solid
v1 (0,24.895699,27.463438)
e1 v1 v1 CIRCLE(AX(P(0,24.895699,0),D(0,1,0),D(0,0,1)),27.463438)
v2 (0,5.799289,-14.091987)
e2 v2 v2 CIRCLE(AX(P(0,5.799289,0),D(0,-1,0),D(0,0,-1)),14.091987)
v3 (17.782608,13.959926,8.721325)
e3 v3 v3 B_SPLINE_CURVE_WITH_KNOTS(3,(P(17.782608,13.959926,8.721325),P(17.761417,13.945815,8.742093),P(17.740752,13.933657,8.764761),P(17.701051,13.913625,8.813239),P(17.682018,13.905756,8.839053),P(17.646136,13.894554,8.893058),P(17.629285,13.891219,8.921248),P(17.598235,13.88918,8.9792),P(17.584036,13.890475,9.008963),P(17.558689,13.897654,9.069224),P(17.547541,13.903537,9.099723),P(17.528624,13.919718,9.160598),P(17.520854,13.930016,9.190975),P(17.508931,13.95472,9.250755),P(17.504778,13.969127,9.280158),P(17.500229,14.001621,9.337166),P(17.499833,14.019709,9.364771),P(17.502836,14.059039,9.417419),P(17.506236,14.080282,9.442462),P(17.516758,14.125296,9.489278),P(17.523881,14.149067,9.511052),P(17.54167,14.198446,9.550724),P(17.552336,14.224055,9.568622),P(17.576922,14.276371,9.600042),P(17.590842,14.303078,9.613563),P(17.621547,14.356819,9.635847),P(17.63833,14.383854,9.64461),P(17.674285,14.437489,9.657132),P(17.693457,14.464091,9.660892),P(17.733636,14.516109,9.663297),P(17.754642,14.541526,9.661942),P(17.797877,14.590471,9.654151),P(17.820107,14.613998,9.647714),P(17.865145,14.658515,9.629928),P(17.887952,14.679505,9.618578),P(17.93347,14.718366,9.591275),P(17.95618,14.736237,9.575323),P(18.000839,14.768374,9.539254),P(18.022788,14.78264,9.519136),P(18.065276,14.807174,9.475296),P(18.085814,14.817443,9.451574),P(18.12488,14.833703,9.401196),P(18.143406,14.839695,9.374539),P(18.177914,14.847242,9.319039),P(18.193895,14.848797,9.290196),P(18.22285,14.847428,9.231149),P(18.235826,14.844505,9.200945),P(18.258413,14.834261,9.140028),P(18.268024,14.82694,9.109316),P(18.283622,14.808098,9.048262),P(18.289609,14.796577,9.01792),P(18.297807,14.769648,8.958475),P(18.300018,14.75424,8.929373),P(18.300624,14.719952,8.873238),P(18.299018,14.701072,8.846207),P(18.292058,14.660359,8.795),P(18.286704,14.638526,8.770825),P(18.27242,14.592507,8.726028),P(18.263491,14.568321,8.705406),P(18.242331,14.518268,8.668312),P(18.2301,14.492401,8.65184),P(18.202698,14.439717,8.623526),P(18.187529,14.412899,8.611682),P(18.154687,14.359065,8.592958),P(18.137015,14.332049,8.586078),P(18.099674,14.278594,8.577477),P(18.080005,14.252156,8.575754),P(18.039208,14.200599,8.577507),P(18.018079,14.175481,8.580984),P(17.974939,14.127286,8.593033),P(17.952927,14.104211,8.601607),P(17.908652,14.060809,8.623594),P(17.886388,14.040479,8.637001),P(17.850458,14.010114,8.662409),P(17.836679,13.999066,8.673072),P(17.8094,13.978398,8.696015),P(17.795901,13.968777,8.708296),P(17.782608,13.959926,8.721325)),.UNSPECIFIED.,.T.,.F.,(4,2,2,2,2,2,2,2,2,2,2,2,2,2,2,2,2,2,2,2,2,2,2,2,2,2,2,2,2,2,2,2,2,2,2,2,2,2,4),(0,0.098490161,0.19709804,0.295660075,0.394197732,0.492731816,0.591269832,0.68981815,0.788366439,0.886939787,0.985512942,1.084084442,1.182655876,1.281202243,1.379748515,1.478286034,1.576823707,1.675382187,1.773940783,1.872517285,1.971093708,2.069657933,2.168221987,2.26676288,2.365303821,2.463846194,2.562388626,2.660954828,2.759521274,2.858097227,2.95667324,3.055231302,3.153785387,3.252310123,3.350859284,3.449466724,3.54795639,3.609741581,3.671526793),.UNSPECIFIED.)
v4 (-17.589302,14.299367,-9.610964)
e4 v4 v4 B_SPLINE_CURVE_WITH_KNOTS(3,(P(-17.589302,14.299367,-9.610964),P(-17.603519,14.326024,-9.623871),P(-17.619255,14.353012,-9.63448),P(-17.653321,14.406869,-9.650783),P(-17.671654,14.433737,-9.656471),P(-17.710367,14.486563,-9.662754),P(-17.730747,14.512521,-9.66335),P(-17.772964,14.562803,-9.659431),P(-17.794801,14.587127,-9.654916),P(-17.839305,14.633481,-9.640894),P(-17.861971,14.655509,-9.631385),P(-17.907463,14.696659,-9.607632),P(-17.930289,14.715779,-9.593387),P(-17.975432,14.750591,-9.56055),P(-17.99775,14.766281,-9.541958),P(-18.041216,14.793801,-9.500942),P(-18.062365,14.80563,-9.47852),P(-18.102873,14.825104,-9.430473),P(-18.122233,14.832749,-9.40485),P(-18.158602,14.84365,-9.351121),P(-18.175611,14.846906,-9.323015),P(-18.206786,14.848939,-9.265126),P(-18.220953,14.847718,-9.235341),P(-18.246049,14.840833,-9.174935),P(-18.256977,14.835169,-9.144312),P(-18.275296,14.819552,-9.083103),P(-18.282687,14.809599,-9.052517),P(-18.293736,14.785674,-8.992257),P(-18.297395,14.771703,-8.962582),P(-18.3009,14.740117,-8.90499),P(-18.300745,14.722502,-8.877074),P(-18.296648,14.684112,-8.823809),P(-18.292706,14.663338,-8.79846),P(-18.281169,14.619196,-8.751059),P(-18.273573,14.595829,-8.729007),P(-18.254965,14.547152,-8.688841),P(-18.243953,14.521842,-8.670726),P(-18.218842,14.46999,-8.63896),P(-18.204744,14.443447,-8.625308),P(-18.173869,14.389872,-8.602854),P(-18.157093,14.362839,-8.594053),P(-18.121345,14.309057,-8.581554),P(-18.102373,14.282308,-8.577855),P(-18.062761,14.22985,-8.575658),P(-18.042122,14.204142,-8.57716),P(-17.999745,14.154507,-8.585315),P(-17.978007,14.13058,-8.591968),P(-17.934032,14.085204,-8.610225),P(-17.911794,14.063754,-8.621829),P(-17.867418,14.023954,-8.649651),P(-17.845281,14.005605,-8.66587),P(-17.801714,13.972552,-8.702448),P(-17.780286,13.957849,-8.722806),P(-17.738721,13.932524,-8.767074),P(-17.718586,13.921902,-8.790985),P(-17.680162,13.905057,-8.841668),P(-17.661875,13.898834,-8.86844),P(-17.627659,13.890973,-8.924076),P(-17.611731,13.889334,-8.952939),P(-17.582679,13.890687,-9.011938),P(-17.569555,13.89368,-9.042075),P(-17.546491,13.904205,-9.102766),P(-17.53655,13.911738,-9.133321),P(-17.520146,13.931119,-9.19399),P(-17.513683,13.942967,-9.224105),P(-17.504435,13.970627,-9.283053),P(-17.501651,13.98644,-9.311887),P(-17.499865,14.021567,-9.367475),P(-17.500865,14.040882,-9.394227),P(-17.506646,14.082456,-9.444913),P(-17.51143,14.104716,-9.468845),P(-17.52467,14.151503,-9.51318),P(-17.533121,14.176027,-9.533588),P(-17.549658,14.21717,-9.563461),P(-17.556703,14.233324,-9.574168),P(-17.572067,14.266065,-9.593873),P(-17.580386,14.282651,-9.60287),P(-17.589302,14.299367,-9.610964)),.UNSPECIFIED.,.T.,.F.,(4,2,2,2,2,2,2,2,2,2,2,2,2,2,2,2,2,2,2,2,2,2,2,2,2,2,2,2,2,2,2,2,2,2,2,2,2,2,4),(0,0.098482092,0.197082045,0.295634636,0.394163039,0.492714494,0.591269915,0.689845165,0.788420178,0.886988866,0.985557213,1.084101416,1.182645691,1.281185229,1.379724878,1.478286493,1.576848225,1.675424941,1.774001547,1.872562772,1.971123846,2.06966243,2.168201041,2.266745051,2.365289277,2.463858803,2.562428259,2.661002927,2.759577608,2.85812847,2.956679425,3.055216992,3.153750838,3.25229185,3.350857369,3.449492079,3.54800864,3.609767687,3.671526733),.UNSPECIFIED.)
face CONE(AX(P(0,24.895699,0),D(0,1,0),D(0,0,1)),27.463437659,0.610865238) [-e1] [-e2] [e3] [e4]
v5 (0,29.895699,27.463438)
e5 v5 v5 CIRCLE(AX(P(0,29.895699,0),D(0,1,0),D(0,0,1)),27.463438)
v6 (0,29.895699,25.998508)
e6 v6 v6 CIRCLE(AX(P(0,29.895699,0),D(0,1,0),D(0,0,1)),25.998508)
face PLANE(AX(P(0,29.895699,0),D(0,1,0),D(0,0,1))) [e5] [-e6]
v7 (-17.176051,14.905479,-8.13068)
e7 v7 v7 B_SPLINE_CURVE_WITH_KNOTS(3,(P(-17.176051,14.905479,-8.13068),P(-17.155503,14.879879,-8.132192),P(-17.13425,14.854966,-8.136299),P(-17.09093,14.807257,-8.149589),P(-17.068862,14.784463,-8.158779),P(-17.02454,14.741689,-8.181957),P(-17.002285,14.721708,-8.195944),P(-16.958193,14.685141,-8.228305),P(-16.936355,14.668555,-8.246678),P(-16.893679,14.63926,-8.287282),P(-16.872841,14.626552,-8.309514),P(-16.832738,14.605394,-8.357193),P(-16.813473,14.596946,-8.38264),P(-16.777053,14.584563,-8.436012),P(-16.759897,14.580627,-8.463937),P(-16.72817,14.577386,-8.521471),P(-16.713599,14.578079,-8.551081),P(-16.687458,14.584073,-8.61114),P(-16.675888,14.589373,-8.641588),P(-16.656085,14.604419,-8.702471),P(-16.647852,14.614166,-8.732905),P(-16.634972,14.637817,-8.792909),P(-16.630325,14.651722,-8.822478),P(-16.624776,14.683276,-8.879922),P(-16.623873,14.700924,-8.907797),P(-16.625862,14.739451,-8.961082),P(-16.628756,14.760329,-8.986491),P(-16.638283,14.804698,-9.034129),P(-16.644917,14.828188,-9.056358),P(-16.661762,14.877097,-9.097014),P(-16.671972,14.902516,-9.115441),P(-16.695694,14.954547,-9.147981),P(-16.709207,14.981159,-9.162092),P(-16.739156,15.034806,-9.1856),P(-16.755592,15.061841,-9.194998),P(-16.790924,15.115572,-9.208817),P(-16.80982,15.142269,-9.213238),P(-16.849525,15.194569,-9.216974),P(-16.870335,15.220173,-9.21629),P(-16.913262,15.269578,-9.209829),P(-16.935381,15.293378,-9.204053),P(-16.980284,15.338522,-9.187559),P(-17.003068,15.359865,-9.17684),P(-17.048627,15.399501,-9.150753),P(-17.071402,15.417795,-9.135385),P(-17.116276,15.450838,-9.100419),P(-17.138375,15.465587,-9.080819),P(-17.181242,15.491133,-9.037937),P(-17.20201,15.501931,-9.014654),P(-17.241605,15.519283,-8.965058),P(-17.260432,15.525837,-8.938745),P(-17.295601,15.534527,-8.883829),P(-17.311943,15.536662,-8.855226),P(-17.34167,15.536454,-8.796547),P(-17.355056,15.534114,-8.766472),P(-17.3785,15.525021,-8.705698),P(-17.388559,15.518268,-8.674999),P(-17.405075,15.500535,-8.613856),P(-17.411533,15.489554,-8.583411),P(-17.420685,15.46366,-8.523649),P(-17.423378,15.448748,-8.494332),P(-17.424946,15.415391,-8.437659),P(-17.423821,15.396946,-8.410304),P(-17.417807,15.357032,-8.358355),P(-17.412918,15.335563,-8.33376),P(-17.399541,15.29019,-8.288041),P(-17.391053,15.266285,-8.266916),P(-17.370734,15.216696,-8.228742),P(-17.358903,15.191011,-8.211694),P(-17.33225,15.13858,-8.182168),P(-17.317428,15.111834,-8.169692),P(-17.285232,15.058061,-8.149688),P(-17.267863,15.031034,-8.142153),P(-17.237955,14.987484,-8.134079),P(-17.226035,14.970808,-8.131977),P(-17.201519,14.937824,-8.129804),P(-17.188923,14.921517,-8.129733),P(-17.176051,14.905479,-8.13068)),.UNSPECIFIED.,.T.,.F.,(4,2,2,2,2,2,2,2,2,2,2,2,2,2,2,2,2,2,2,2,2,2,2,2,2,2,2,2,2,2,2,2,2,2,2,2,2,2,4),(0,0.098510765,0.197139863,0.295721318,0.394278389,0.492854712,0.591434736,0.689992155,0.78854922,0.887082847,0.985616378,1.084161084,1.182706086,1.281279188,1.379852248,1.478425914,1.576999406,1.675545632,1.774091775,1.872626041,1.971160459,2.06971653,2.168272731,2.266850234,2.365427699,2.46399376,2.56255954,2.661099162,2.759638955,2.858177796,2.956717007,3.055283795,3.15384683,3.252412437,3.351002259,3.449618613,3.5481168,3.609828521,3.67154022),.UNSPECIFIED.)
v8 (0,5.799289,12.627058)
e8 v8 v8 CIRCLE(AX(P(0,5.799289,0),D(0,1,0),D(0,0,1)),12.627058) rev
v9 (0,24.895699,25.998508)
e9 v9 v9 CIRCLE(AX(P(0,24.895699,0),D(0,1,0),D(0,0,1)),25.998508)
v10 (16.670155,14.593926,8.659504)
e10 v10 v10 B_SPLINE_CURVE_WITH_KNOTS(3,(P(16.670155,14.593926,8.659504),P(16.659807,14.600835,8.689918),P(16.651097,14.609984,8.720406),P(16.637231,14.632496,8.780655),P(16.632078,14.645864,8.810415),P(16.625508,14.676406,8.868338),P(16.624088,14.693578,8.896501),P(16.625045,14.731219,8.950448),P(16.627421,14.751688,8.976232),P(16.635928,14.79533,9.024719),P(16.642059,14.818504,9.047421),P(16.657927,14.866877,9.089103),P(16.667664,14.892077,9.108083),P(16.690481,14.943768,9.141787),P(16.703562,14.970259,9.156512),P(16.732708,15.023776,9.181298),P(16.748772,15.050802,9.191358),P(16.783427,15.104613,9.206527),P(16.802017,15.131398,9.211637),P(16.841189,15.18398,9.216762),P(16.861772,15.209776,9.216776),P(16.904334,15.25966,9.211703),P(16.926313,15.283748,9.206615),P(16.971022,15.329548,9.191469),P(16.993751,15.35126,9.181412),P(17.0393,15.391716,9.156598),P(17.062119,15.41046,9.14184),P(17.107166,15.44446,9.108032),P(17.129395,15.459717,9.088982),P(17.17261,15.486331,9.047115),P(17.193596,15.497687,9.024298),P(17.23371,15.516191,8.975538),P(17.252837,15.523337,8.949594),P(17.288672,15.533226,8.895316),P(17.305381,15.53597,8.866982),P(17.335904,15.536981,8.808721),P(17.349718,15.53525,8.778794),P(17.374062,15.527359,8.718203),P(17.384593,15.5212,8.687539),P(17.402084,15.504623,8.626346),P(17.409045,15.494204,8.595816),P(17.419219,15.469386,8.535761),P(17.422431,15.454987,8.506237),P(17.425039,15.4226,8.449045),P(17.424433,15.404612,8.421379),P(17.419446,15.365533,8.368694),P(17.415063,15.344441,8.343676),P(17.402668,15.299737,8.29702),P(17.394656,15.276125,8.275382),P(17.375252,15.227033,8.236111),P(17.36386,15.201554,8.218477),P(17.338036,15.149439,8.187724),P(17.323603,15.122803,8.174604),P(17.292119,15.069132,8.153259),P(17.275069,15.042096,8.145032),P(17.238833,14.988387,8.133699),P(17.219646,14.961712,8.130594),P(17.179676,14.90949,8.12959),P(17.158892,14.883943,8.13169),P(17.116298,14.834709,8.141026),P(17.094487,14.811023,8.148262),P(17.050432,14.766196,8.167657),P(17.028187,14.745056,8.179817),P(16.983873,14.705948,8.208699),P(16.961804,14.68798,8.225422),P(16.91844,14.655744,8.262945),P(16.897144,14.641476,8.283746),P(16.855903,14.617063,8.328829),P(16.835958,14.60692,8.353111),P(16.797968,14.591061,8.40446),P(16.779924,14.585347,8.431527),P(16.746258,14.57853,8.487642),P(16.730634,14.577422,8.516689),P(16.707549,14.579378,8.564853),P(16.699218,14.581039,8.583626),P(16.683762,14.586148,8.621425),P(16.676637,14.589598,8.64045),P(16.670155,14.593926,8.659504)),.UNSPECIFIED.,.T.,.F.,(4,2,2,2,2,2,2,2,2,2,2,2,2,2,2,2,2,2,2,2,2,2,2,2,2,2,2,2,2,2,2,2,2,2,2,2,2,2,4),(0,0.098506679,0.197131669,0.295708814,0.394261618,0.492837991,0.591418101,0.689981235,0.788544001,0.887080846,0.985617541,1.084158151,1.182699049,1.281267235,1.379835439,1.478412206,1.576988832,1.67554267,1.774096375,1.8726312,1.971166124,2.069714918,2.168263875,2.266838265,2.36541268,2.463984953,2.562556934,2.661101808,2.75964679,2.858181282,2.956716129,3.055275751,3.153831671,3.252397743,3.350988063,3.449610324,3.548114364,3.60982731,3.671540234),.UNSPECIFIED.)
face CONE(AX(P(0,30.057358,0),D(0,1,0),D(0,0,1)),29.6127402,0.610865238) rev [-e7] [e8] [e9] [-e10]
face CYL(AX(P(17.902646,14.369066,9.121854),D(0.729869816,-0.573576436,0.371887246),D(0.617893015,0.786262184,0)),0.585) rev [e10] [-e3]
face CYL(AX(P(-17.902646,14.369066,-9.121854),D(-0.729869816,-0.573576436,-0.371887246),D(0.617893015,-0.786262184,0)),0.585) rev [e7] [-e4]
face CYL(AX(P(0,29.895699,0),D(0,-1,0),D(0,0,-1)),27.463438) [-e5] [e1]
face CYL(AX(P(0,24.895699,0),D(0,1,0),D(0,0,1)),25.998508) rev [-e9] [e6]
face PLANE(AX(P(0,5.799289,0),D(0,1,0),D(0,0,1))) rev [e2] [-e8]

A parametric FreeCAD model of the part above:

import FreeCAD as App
import Part
import Sketcher
Q = App.Units.Quantity


def add_polygon(sketch, points):
    """Adds a closed chain of lines whose ends are joined by coincident constraints."""
    first, n = sketch.GeometryCount, len(points)
    for a, b in zip(points, points[1:] + points[:1]):
        sketch.addGeometry(Part.LineSegment(App.Vector(*a, 0), App.Vector(*b, 0)), False)
    for i in range(n):
        sketch.addConstraint(Sketcher.Constraint("Coincident", first + i, 2, first + (i + 1) % n, 1))

doc = App.newDocument("Part")
body = doc.addObject("PartDesign::Body", "Body")

# Sketch on XY plane
sketch1 = body.newObject("Sketcher::SketchObject", "Sketch")
sketch1.AttachmentSupport = (doc.getObject("XY_Plane"), [""])
sketch1.MapMode = "FlatFace"
add_polygon(sketch1, [(0, 24.895699), (27.463438, 24.895699), (14.091987, 5.799289), (0, 5.799289)])  # lines 0-3
sketch1.addConstraint([
    Sketcher.Constraint("Horizontal", 0),
    Sketcher.Constraint("Horizontal", 2),
    Sketcher.Constraint("Vertical", 3),
    Sketcher.Constraint("PointOnObject", 2, 2, -2),
    Sketcher.Constraint("Angle", 1, Q("-125 deg")),
    Sketcher.Constraint("DistanceY", 3, 1, 3, 2, 19.09641),
    Sketcher.Constraint("DistanceY", -1, 1, 0, 2, 24.895699),
    Sketcher.Constraint("DistanceX", 0, 1, 0, 2, 27.463438),
])
revolution = body.newObject("PartDesign::Revolution", "Revolution")
revolution.Profile = sketch1
revolution.ReferenceAxis = (sketch1, ["V_Axis"])
revolution.Angle = 360

# Sketch on XY plane
sketch2 = body.newObject("Sketcher::SketchObject", "Sketch001")
sketch2.AttachmentSupport = (doc.getObject("XY_Plane"), [""])
sketch2.MapMode = "FlatFace"
add_polygon(sketch2, [(0, 30), (29.61274, 30.057358), (10.448606, 2.688138), (0, 2.666893)])  # lines 0-3
sketch2.addConstraint([
    Sketcher.Constraint("Vertical", 3),
    Sketcher.Constraint("PointOnObject", 2, 2, -2),
    Sketcher.Constraint("Angle", 1, Q("-125 deg")),
    Sketcher.Constraint("DistanceY", -1, 1, 3, 2, 30.0),
    Sketcher.Constraint("Distance", 1, 33.411648),
    Sketcher.Constraint("DistanceY", 3, 1, 3, 2, 27.333107),
    Sketcher.Constraint("DistanceX", -1, 1, 0, 2, 29.61274),
    Sketcher.Constraint("DistanceY", -1, 1, 0, 2, 30.057358),
])
groove = body.newObject("PartDesign::Groove", "Groove")
groove.Profile = sketch2
groove.ReferenceAxis = (sketch2, ["V_Axis"])
groove.Angle = 360

# Sketch on XZ plane
sketch3 = body.newObject("Sketcher::SketchObject", "Sketch002")
sketch3.AttachmentSupport = (doc.getObject("XZ_Plane"), [""])
sketch3.MapMode = "FlatFace"
sketch3.AttachmentOffset = App.Placement(App.Vector(0, 0, -24.895699), App.Rotation())
sketch3.addGeometry(Part.Circle(App.Vector(0, 0, 0), App.Vector(0, 0, 1), 27.463438), False)
sketch3.addConstraint([
    Sketcher.Constraint("Coincident", 0, 3, -1, 1),
    Sketcher.Constraint("Diameter", 0, 54.926875),
])
pad1 = body.newObject("PartDesign::Pad", "Pad")
pad1.Profile = sketch3
pad1.Length = 5
pad1.Reversed = True

# Sketch on XZ plane
sketch4 = body.newObject("Sketcher::SketchObject", "Sketch003")
sketch4.AttachmentSupport = (doc.getObject("XZ_Plane"), [""])
sketch4.MapMode = "FlatFace"
sketch4.AttachmentOffset = App.Placement(App.Vector(0, 0, -29.895699), App.Rotation())
sketch4.addGeometry(Part.Circle(App.Vector(0, 0, 0), App.Vector(0, 0, 1), 25.998508), False)
sketch4.addConstraint([
    Sketcher.Constraint("Coincident", 0, 3, -1, 1),
    Sketcher.Constraint("Diameter", 0, 51.997016),
])
pocket1 = body.newObject("PartDesign::Pocket", "Pocket")
pocket1.Profile = sketch4
pocket1.Length = 5
pocket1.Reversed = True

# Sketch on an angled plane
sketch5 = body.newObject("Sketcher::SketchObject", "Sketch004")
sketch5.Placement = App.Placement(App.Vector(5.997446, -4.713161, 3.055851), App.Rotation(App.Vector(0.617893015, 0.786262184, 0), App.Vector(-0.292400878, 0.229786532, 0.928277909), App.Vector(0.729869816, -0.573576436, 0.371887246), "ZXY"))
sketch5.addGeometry(Part.Circle(App.Vector(22.359773, 6.534684, 0), App.Vector(0, 0, 1), 0.585), False)
sketch5.addConstraint([
    Sketcher.Constraint("Diameter", 0, 1.17),
    Sketcher.Constraint("DistanceX", -1, 1, 0, 3, 22.359773),
    Sketcher.Constraint("DistanceY", -1, 1, 0, 3, 6.534684),
])
doc.recompute()
hole = body.newObject("PartDesign::Hole", "Hole")
hole.Profile = sketch5
hole.ThreadType = "None"
hole.Diameter = 1.17
hole.DepthType = "Dimension"
hole.Depth = 2
hole.DrillPoint = "Angled"
hole.DrillPointAngle = 118

# Sketch on an angled plane
sketch6 = body.newObject("Sketcher::SketchObject", "Sketch005")
sketch6.Placement = App.Placement(App.Vector(-5.997446, -4.713161, -3.055851), App.Rotation(App.Vector(0.617893015, -0.786262184, 0), App.Vector(-0.292400878, -0.229786532, 0.928277909), App.Vector(-0.729869816, -0.573576436, -0.371887246), "ZXY"))
sketch6.addGeometry(Part.Circle(App.Vector(-22.359773, -6.534684, 0), App.Vector(0, 0, 1), 0.585), False)
sketch6.addConstraint([
    Sketcher.Constraint("Diameter", 0, 1.17),
    Sketcher.Constraint("DistanceX", 0, 3, -1, 1, 22.359773),
    Sketcher.Constraint("DistanceY", 0, 3, -1, 1, 6.534684),
])
doc.recompute()
hole2 = body.newObject("PartDesign::Hole", "Hole001")
hole2.Profile = sketch6
hole2.ThreadType = "None"
hole2.Diameter = 1.17
hole2.DepthType = "Dimension"
hole2.Depth = 2
hole2.DrillPoint = "Angled"
hole2.DrillPointAngle = 118

doc.recompute()
